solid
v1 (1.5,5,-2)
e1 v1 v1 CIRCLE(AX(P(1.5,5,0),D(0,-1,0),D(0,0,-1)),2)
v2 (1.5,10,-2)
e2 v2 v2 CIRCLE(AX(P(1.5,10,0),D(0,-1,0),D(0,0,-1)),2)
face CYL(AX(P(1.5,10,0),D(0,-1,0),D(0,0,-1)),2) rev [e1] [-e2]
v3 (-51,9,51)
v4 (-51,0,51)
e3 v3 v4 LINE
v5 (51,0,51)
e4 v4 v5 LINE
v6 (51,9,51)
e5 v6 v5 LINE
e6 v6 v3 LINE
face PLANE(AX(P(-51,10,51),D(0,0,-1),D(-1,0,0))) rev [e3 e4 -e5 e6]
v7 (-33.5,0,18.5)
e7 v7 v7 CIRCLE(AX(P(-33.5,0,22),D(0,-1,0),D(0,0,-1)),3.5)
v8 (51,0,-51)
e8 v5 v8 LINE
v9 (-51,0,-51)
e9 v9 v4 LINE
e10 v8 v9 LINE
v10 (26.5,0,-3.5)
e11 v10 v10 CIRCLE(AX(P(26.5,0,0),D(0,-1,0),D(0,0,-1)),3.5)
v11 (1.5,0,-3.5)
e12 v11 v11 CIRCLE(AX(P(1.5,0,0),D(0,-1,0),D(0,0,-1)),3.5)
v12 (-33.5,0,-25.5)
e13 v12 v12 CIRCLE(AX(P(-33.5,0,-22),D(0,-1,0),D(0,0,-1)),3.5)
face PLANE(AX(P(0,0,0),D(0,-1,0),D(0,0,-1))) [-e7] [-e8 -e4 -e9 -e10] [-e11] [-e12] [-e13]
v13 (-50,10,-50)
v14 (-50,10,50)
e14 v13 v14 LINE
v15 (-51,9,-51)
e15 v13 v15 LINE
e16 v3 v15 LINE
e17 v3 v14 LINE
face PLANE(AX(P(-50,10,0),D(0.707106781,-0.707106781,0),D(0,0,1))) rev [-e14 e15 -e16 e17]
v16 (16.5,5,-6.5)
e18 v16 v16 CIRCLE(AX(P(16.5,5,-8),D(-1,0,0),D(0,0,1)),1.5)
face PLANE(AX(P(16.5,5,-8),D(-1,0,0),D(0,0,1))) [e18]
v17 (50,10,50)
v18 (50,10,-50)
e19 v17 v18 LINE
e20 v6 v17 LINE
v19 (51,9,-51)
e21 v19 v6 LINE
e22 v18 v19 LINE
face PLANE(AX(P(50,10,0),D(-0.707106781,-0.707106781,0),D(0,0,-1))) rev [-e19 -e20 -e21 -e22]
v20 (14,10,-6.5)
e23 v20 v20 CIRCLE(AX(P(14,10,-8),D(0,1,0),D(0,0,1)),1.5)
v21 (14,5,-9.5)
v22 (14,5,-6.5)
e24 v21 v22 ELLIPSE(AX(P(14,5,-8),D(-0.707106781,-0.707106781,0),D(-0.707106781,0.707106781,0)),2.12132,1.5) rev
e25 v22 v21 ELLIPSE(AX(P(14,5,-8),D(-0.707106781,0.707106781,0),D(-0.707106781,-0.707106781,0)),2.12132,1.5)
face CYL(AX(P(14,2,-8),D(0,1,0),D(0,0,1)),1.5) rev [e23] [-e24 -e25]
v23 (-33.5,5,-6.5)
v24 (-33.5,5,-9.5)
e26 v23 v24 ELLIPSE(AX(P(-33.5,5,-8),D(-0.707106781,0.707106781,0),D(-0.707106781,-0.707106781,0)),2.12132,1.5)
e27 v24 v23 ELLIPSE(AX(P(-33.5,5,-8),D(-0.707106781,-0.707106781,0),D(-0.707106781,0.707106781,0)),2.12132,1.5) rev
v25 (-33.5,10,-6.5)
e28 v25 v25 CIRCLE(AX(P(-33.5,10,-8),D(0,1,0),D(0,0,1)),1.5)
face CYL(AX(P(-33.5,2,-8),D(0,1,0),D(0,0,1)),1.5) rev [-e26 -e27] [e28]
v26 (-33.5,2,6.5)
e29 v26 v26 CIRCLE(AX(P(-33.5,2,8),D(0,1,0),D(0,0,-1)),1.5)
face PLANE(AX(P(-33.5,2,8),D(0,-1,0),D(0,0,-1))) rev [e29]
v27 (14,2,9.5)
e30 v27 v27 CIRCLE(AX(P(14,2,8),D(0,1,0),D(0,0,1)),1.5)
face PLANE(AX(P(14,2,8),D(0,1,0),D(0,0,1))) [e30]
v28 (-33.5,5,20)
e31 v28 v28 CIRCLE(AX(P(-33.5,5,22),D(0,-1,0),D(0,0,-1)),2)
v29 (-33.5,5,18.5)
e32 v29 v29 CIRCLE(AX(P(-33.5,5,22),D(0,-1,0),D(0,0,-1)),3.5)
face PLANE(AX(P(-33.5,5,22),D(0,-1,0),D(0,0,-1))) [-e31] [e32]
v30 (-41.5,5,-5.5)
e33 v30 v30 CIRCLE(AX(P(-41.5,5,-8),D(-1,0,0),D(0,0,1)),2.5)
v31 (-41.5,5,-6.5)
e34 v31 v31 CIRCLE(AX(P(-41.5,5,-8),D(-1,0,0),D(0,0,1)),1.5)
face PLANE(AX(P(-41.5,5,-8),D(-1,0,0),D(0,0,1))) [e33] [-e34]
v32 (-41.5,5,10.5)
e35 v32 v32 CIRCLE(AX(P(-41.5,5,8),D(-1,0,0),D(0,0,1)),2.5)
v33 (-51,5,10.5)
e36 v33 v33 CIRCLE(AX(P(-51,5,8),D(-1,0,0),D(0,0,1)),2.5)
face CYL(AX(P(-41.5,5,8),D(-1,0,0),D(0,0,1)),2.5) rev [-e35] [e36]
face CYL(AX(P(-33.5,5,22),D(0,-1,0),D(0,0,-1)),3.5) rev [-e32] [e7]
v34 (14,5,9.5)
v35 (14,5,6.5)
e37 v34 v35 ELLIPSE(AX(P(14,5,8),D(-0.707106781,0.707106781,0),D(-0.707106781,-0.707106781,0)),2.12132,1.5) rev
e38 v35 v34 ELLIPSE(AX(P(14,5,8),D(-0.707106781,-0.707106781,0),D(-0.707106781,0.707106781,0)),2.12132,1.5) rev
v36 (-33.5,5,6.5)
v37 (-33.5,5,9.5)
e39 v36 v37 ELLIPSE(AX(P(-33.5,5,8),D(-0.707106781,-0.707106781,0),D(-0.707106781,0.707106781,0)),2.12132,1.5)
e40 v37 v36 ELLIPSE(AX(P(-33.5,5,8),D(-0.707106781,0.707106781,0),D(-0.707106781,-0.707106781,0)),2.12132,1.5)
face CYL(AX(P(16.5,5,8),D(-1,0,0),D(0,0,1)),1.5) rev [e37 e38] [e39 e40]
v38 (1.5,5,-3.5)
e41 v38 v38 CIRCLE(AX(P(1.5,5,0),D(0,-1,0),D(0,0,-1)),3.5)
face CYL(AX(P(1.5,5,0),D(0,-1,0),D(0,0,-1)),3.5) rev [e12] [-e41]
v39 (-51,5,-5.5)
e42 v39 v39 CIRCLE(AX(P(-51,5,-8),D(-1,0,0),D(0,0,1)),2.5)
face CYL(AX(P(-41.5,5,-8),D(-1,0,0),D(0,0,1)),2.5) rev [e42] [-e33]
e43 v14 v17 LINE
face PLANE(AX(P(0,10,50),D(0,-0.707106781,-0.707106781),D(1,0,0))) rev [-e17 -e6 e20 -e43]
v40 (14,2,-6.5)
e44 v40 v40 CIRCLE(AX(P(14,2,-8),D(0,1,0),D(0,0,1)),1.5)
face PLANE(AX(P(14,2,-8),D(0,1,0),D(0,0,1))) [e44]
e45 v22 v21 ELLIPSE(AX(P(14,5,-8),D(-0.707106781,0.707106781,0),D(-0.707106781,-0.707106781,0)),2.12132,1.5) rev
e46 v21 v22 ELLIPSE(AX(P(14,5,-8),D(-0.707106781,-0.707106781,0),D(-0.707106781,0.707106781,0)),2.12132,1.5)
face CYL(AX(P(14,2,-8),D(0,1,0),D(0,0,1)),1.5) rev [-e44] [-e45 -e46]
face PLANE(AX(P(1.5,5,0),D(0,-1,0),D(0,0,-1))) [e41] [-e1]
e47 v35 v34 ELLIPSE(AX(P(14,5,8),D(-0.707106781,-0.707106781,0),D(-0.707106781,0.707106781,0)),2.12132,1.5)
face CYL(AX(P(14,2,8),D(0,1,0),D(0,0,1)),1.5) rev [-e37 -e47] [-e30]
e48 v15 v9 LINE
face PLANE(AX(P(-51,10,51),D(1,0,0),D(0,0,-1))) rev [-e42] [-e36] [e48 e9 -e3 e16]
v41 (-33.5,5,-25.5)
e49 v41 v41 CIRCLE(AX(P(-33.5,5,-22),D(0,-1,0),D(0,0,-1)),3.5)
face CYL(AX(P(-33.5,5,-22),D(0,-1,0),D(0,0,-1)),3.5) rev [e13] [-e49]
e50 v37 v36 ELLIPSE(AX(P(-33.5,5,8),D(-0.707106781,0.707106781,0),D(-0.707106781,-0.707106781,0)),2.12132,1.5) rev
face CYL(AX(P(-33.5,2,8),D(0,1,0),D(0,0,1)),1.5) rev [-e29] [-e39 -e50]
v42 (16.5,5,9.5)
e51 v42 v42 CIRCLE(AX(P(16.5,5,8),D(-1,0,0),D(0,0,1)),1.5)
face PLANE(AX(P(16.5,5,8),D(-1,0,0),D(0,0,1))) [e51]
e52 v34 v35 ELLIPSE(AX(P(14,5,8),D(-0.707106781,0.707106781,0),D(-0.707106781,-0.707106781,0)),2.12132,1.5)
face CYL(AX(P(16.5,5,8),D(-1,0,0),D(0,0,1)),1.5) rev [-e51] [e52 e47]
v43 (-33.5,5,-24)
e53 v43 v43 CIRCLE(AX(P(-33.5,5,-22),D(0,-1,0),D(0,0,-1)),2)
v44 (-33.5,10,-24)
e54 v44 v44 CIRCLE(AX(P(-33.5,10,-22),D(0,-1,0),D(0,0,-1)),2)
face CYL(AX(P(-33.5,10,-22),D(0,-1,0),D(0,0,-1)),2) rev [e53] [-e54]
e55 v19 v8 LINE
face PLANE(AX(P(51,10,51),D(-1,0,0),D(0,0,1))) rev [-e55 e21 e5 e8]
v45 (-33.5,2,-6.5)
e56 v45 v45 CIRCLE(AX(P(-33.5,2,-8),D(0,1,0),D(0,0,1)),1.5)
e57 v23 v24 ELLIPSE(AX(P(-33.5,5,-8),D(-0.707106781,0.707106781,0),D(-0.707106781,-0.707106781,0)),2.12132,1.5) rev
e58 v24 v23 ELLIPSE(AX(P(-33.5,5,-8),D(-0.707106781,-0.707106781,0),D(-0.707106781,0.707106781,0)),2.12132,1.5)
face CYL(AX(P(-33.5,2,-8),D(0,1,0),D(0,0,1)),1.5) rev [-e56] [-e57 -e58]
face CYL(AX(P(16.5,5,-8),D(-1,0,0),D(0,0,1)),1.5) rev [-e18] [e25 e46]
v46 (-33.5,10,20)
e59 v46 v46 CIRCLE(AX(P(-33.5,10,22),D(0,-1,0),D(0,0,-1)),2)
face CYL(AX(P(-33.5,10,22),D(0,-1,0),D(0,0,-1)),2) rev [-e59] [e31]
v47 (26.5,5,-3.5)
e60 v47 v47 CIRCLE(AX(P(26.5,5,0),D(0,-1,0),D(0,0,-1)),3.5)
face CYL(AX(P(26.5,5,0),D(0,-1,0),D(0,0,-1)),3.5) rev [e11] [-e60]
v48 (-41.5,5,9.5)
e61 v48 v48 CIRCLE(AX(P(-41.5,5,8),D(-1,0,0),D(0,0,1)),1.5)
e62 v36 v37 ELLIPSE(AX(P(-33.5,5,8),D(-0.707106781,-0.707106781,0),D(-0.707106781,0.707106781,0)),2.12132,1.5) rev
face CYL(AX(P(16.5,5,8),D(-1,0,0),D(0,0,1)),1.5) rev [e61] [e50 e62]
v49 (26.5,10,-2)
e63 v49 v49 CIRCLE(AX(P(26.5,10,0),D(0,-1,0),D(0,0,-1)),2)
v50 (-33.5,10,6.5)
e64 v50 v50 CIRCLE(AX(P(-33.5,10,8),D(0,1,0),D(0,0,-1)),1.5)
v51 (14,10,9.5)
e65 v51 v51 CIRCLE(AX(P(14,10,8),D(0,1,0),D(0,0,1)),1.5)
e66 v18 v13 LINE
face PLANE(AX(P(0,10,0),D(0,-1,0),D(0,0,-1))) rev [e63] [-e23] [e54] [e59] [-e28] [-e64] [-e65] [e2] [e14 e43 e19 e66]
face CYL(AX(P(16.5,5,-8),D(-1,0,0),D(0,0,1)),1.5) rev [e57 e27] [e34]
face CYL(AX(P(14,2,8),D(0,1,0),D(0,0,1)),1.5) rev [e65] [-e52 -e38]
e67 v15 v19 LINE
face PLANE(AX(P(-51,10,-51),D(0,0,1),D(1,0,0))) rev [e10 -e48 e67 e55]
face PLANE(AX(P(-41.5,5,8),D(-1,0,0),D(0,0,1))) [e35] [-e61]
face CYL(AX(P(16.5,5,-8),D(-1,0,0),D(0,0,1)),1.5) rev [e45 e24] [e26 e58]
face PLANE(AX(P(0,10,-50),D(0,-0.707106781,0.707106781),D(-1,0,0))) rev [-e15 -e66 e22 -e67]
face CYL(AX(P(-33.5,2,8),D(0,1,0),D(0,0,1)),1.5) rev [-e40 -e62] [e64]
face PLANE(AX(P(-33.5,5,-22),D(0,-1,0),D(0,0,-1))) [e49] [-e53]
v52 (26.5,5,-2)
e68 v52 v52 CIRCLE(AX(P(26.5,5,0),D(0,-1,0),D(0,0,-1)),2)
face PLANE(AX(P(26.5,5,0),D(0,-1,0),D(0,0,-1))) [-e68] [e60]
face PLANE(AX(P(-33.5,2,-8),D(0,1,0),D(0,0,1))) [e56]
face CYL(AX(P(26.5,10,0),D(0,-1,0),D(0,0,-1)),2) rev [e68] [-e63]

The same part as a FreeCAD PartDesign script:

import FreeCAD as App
import Part
import Sketcher
Q = App.Units.Quantity


def edges_at(feature, points):
    """Names of the edges that pass closest to the given points."""
    edges = feature.Shape.Edges
    near = lambda p: min(range(len(edges)), key=lambda i: edges[i].distToShape(Part.Vertex(*p))[0])
    return sorted({f"Edge{near(p) + 1}" for p in points})


def add_polygon(sketch, points):
    """Adds a closed chain of lines whose ends are joined by coincident constraints."""
    first, n = sketch.GeometryCount, len(points)
    for a, b in zip(points, points[1:] + points[:1]):
        sketch.addGeometry(Part.LineSegment(App.Vector(*a, 0), App.Vector(*b, 0)), False)
    for i in range(n):
        sketch.addConstraint(Sketcher.Constraint("Coincident", first + i, 2, first + (i + 1) % n, 1))

doc = App.newDocument("Part")
body = doc.addObject("PartDesign::Body", "Body")

# Sketch on XZ plane
sketch1 = body.newObject("Sketcher::SketchObject", "Sketch")
sketch1.AttachmentSupport = (doc.getObject("XZ_Plane"), [""])
sketch1.MapMode = "FlatFace"
add_polygon(sketch1, [(-51, -51), (-51, 51), (51, 51), (51, -51)])  # lines 0-3
sketch1.addConstraint([
    Sketcher.Constraint("Vertical", 0),
    Sketcher.Constraint("Horizontal", 1),
    Sketcher.Constraint("Vertical", 2),
    Sketcher.Constraint("Horizontal", 3),
    Sketcher.Constraint("Symmetric", 0, 2, 2, 2, -1, 1),
    Sketcher.Constraint("Equal", 3, 0),
    Sketcher.Constraint("DistanceX", 1, 1, 1, 2, Q("102 mm")),
])
pad1 = body.newObject("PartDesign::Pad", "Pad")
pad1.Profile = sketch1
pad1.Length = 10
pad1.Reversed = True

# Sketch on YZ plane
sketch2 = body.newObject("Sketcher::SketchObject", "Sketch001")
sketch2.AttachmentSupport = (doc.getObject("YZ_Plane"), [""])
sketch2.MapMode = "FlatFace"
sketch2.AttachmentOffset = App.Placement(App.Vector(0, 0, -51), App.Rotation())
sketch2.addGeometry([
    Part.Circle(App.Vector(5, -8, 0), App.Vector(0, 0, 1), 2.5),
    Part.Circle(App.Vector(5, 8, 0), App.Vector(0, 0, 1), 2.5),
], False)
sketch2.addConstraint([
    Sketcher.Constraint("Equal", 0, 1),
    Sketcher.Constraint("Symmetric", 0, 3, 1, 3, -1),
    Sketcher.Constraint("Diameter", 0, Q("5 mm")),
    Sketcher.Constraint("DistanceX", -1, 1, 0, 3, Q("5 mm")),
    Sketcher.Constraint("DistanceY", 0, 3, -1, 1, Q("8 mm")),
])
pocket1 = body.newObject("PartDesign::Pocket", "Pocket")
pocket1.Profile = sketch2
pocket1.Length = 9.5
pocket1.Reversed = True

# Sketch on YZ plane
sketch3 = body.newObject("Sketcher::SketchObject", "Sketch002")
sketch3.AttachmentSupport = (doc.getObject("YZ_Plane"), [""])
sketch3.MapMode = "FlatFace"
sketch3.AttachmentOffset = App.Placement(App.Vector(0, 0, -41.5), App.Rotation())
sketch3.addGeometry([
    Part.Circle(App.Vector(5, -8, 0), App.Vector(0, 0, 1), 1.5),
    Part.Circle(App.Vector(5, 8, 0), App.Vector(0, 0, 1), 1.5),
], False)
sketch3.addConstraint([
    Sketcher.Constraint("Equal", 0, 1),
    Sketcher.Constraint("Symmetric", 0, 3, 1, 3, -1),
    Sketcher.Constraint("Diameter", 0, Q("3 mm")),
    Sketcher.Constraint("DistanceX", -1, 1, 0, 3, Q("5 mm")),
    Sketcher.Constraint("DistanceY", 0, 3, -1, 1, Q("8 mm")),
])
pocket2 = body.newObject("PartDesign::Pocket", "Pocket001")
pocket2.Profile = sketch3
pocket2.Length = 58
pocket2.Reversed = True

# Sketch on XZ plane
sketch4 = body.newObject("Sketcher::SketchObject", "Sketch003")
sketch4.AttachmentSupport = (doc.getObject("XZ_Plane"), [""])
sketch4.MapMode = "FlatFace"
sketch4.addGeometry([
    Part.Circle(App.Vector(-33.5, 22, 0), App.Vector(0, 0, 1), 3.5),
    Part.Circle(App.Vector(-33.5, -22, 0), App.Vector(0, 0, 1), 3.5),
    Part.Circle(App.Vector(1.5, 0, 0), App.Vector(0, 0, 1), 3.5),
    Part.Circle(App.Vector(26.5, 0, 0), App.Vector(0, 0, 1), 3.5),
], False)
sketch4.addConstraint([
    Sketcher.Constraint("Equal", 0, 1),
    Sketcher.Constraint("Equal", 1, 2),
    Sketcher.Constraint("Equal", 2, 3),
    Sketcher.Constraint("Symmetric", 0, 3, 1, 3, -1),
    Sketcher.Constraint("PointOnObject", 2, 3, -1),
    Sketcher.Constraint("PointOnObject", 3, 3, -1),
    Sketcher.Constraint("Diameter", 0, Q("7 mm")),
    Sketcher.Constraint("DistanceY", -1, 1, 0, 3, Q("22 mm")),
    Sketcher.Constraint("DistanceX", 0, 3, 2, 3, Q("35 mm")),
    Sketcher.Constraint("DistanceX", 2, 3, 3, 3, Q("25 mm")),
    Sketcher.Constraint("DistanceX", 0, 3, -1, 1, Q("33.5 mm")),
])
pocket3 = body.newObject("PartDesign::Pocket", "Pocket002")
pocket3.Profile = sketch4
pocket3.Length = 5

# Sketch on XZ plane
sketch5 = body.newObject("Sketcher::SketchObject", "Sketch004")
sketch5.AttachmentSupport = (doc.getObject("XZ_Plane"), [""])
sketch5.MapMode = "FlatFace"
sketch5.AttachmentOffset = App.Placement(App.Vector(0, 0, -5), App.Rotation())
sketch5.addGeometry([
    Part.Circle(App.Vector(-33.5, 22, 0), App.Vector(0, 0, 1), 2),
    Part.Circle(App.Vector(1.5, 0, 0), App.Vector(0, 0, 1), 2),
    Part.Circle(App.Vector(26.5, 0, 0), App.Vector(0, 0, 1), 2),
    Part.Circle(App.Vector(-33.5, -22, 0), App.Vector(0, 0, 1), 2),
], False)
sketch5.addConstraint([
    Sketcher.Constraint("Equal", 0, 1),
    Sketcher.Constraint("Equal", 1, 2),
    Sketcher.Constraint("Equal", 2, 3),
    Sketcher.Constraint("Symmetric", 0, 3, 3, 3, -1),
    Sketcher.Constraint("PointOnObject", 1, 3, -1),
    Sketcher.Constraint("PointOnObject", 2, 3, -1),
    Sketcher.Constraint("Diameter", 0, Q("4 mm")),
    Sketcher.Constraint("DistanceY", -1, 1, 0, 3, Q("22 mm")),
    Sketcher.Constraint("DistanceX", 0, 3, 1, 3, Q("35 mm")),
    Sketcher.Constraint("DistanceX", 1, 3, 2, 3, Q("25 mm")),
    Sketcher.Constraint("DistanceX", 0, 3, -1, 1, Q("33.5 mm")),
])
pocket4 = body.newObject("PartDesign::Pocket", "Pocket003")
pocket4.Profile = sketch5
pocket4.Length = 5

# Sketch on XZ plane
sketch6 = body.newObject("Sketcher::SketchObject", "Sketch005")
sketch6.AttachmentSupport = (doc.getObject("XZ_Plane"), [""])
sketch6.MapMode = "FlatFace"
sketch6.AttachmentOffset = App.Placement(App.Vector(0, 0, -10), App.Rotation())
sketch6.addGeometry([
    Part.Circle(App.Vector(-33.5, -8, 0), App.Vector(0, 0, 1), 1.5),
    Part.Circle(App.Vector(-33.5, 8, 0), App.Vector(0, 0, 1), 1.5),
    Part.Circle(App.Vector(14, -8, 0), App.Vector(0, 0, 1), 1.5),
    Part.Circle(App.Vector(14, 8, 0), App.Vector(0, 0, 1), 1.5),
], False)
sketch6.addConstraint([
    Sketcher.Constraint("Equal", 0, 1),
    Sketcher.Constraint("Equal", 1, 2),
    Sketcher.Constraint("Equal", 2, 3),
    Sketcher.Constraint("Symmetric", 0, 3, 1, 3, -1),
    Sketcher.Constraint("Symmetric", 2, 3, 3, 3, -1),
    Sketcher.Constraint("Horizontal", 0, 3, 2, 3),
    Sketcher.Constraint("Diameter", 0, Q("3 mm")),
    Sketcher.Constraint("DistanceY", 0, 3, -1, 1, Q("8 mm")),
    Sketcher.Constraint("DistanceX", -1, 1, 2, 3, Q("14 mm")),
    Sketcher.Constraint("DistanceX", 0, 3, -1, 1, Q("33.5 mm")),
])
pocket5 = body.newObject("PartDesign::Pocket", "Pocket004")
pocket5.Profile = sketch6
pocket5.Length = 8
pocket5.Reversed = True
doc.recompute()

chamfer = body.newObject("PartDesign::Chamfer", "Chamfer")
chamfer.Base = (pocket5, edges_at(pocket5, [
    (-51, 10, 0),
    (0, 10, 51),
    (51, 10, 0),
    (0, 10, -51),
]))
chamfer.Size = 1

doc.recompute()
